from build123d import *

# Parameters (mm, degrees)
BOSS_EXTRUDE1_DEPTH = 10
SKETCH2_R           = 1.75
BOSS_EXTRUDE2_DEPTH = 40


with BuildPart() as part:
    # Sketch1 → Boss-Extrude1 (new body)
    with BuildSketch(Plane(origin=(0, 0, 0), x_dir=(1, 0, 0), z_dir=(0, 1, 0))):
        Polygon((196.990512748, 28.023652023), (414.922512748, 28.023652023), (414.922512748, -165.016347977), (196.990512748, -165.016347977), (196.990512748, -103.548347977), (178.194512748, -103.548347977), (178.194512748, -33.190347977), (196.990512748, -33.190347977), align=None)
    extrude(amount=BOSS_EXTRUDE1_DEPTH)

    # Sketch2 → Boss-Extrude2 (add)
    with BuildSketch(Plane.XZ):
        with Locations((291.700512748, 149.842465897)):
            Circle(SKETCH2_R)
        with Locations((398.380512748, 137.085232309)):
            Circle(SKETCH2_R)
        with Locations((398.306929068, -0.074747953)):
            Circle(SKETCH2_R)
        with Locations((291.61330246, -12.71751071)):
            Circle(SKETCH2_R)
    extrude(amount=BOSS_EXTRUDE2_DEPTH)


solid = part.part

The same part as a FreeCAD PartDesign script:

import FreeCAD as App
import Part
import Sketcher
Q = App.Units.Quantity

doc = App.newDocument("Part")
body = doc.addObject("PartDesign::Body", "Body")

# Sketch on XZ plane
sketch1 = doc.addObject("Sketcher::SketchObject", "Sketch")
body.addObject(sketch1)
sketch1.AttachmentSupport = (doc.XZ_Plane, [""])
sketch1.MapMode = "FlatFace"
sketch1.addGeometry([
    Part.LineSegment(App.Vector(414.922513, -28.023652, 0), App.Vector(196.990513, -28.023652, 0)),  # 0
    Part.LineSegment(App.Vector(196.990513, -28.023652, 0), App.Vector(196.990513, 33.190348, 0)),  # 1
    Part.LineSegment(App.Vector(196.990513, 33.190348, 0), App.Vector(178.194513, 33.190348, 0)),  # 2
    Part.LineSegment(App.Vector(178.194513, 33.190348, 0), App.Vector(178.194513, 103.548348, 0)),  # 3
    Part.LineSegment(App.Vector(178.194513, 103.548348, 0), App.Vector(196.990513, 103.548348, 0)),  # 4
    Part.LineSegment(App.Vector(196.990513, 103.548348, 0), App.Vector(196.990513, 165.016348, 0)),  # 5
    Part.LineSegment(App.Vector(196.990513, 165.016348, 0), App.Vector(414.922513, 165.016348, 0)),  # 6
    Part.LineSegment(App.Vector(414.922513, 165.016348, 0), App.Vector(414.922513, -28.023652, 0)),  # 7
], False)
sketch1.addConstraint([
    Sketcher.Constraint("Coincident", 0, 2, 1, 1),
    Sketcher.Constraint("Coincident", 1, 2, 2, 1),
    Sketcher.Constraint("Coincident", 2, 2, 3, 1),
    Sketcher.Constraint("Coincident", 3, 2, 4, 1),
    Sketcher.Constraint("Coincident", 4, 2, 5, 1),
    Sketcher.Constraint("Coincident", 5, 2, 6, 1),
    Sketcher.Constraint("Coincident", 6, 2, 7, 1),
    Sketcher.Constraint("Coincident", 7, 2, 0, 1),
    Sketcher.Constraint("Horizontal", 0),
    Sketcher.Constraint("Vertical", 1),
    Sketcher.Constraint("Horizontal", 2),
    Sketcher.Constraint("Vertical", 3),
    Sketcher.Constraint("Horizontal", 4),
    Sketcher.Constraint("Vertical", 5),
    Sketcher.Constraint("Horizontal", 6),
    Sketcher.Constraint("Vertical", 7),
    Sketcher.Constraint("Vertical", 1, 2, 4, 2),
    Sketcher.Constraint("DistanceY", 7, 2, 7, 1, Q("7.6 in")),
    Sketcher.Constraint("DistanceX", 0, 2, 0, 1, Q("8.58 in")),
    Sketcher.Constraint("DistanceX", 2, 2, 2, 1, Q("0.74 in")),
    Sketcher.Constraint("DistanceY", 1, 1, 1, 2, Q("2.41 in")),
    Sketcher.Constraint("DistanceY", 3, 1, 3, 2, Q("2.77 in")),
    Sketcher.Constraint("DistanceX", -1, 1, 0, 2, 196.990513),
    Sketcher.Constraint("DistanceY", 0, 2, -1, 1, 28.023652),
])
pad1 = doc.addObject("PartDesign::Pad", "Pad")
body.addObject(pad1)
pad1.Profile = sketch1
pad1.Length = 10
pad1.Reversed = True

# Sketch on XZ plane
sketch2 = doc.addObject("Sketcher::SketchObject", "Sketch001")
body.addObject(sketch2)
sketch2.AttachmentSupport = (doc.XZ_Plane, [""])
sketch2.MapMode = "FlatFace"
sketch2.addGeometry([
    Part.Circle(App.Vector(291.700513, 149.842466, 0), App.Vector(0, 0, 1), 1.75),
    Part.Circle(App.Vector(398.380513, 137.085232, 0), App.Vector(0, 0, 1), 1.75),
    Part.Circle(App.Vector(398.306929, -0.074748, 0), App.Vector(0, 0, 1), 1.75),
    Part.Circle(App.Vector(291.613302, -12.717511, 0), App.Vector(0, 0, 1), 1.75),
], False)
sketch2.addConstraint([
    Sketcher.Constraint("Equal", 0, 1),
    Sketcher.Constraint("Equal", 1, 2),
    Sketcher.Constraint("Equal", 2, 3),
    Sketcher.Constraint("DistanceX", 0, 3, 1, 3, Q("4.2 in")),
    Sketcher.Constraint("Diameter", 0, 3.5),
    Sketcher.Constraint("DistanceX", -1, 1, 2, 3, 398.306929),
    Sketcher.Constraint("DistanceY", 3, 3, -1, 1, 12.717511),
    Sketcher.Constraint("DistanceY", 2, 3, 1, 3, 137.15998),
    Sketcher.Constraint("DistanceX", 3, 3, 0, 3, 0.08721),
    Sketcher.Constraint("DistanceX", -1, 1, 0, 3, 291.700513),
    Sketcher.Constraint("DistanceY", -1, 1, 0, 3, 149.842466),
    Sketcher.Constraint("DistanceY", -1, 1, 1, 3, 137.085232),
])
pad2 = doc.addObject("PartDesign::Pad", "Pad001")
body.addObject(pad2)
pad2.Profile = sketch2
pad2.Length = 40

doc.recompute()
